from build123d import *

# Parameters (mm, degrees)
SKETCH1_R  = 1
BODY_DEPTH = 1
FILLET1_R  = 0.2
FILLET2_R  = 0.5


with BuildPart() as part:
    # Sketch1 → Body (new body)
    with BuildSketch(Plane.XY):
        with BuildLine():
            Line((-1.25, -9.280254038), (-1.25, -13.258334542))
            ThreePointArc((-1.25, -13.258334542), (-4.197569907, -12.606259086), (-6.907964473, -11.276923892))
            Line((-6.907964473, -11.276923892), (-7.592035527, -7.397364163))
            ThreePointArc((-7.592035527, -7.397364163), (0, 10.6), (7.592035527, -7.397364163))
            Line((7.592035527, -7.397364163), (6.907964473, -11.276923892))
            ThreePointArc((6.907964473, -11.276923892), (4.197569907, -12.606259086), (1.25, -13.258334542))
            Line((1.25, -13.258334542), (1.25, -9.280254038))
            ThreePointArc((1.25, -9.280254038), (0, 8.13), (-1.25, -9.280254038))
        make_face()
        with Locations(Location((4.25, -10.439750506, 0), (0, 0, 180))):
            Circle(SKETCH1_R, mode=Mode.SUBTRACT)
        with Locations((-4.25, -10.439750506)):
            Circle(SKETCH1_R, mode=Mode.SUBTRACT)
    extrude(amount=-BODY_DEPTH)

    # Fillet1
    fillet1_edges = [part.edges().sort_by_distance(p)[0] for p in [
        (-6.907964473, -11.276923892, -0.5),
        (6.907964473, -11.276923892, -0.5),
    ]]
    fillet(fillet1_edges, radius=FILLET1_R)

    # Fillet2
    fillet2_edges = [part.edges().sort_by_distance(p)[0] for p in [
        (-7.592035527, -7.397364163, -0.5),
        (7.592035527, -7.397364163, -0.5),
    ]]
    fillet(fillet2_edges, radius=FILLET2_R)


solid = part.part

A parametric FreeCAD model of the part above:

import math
import FreeCAD as App
import Part
import Sketcher

V = App.Vector
Q = App.Units.Quantity


def edges_at(feature, points):
    """Names of the edges that pass closest to the given points."""
    edges = feature.Shape.Edges
    near = lambda p: min(range(len(edges)), key=lambda i: edges[i].distToShape(Part.Vertex(*p))[0])
    return sorted({f"Edge{near(p) + 1}" for p in points})

doc = App.newDocument("Part")
body = doc.addObject("PartDesign::Body", "Body")

sketch1 = body.newObject("Sketcher::SketchObject", "Sketch")
sketch1.AttachmentSupport = (doc.getObject("XY_Plane"), [""])
sketch1.MapMode = "FlatFace"
sketch1.addGeometry(Part.LineSegment(V(-1.2, -13.3, 0), V(-1.2, -9.3, 0)), False)
sketch1.addGeometry(Part.ArcOfCircle(Part.Circle(V(0, -0.6, 0), V(0, 0, 1), 8.8), math.radians(-82), math.radians(262)), False)
sketch1.addGeometry(Part.LineSegment(V(1.2, -9.3, 0), V(1.2, -13.3, 0)), False)
sketch1.addGeometry(Part.ArcOfCircle(Part.Circle(V(0, -0.6, 0), V(0, 0, 1), 12.7), math.radians(-84), math.radians(-57)), False)
sketch1.addGeometry(Part.LineSegment(V(6.9, -11.3, 0), V(7.6, -7.4, 0)), False)
sketch1.addGeometry(Part.ArcOfCircle(Part.Circle(V(0, 0, 0), V(0, 0, 1), 10.6), math.radians(-44), math.radians(224)), False)
sketch1.addGeometry(Part.LineSegment(V(-7.6, -7.4, 0), V(-6.9, -11.3, 0)), False)
sketch1.addGeometry(Part.ArcOfCircle(Part.Circle(V(0, -0.6, 0), V(0, 0, 1), 12.7), math.radians(-123), math.radians(-96)), False)
sketch1.addGeometry(Part.Circle(V(4.2, -10.4, 0), V(0, 0, 1), 1), False)
sketch1.addGeometry(Part.Circle(V(-4.2, -10.4, 0), V(0, 0, 1), 1), False)
sketch1.addConstraint(Sketcher.Constraint("Coincident", 0, 2, 1, 2))
sketch1.addConstraint(Sketcher.Constraint("Coincident", 1, 1, 2, 1))
sketch1.addConstraint(Sketcher.Constraint("Coincident", 2, 2, 3, 1))
sketch1.addConstraint(Sketcher.Constraint("Coincident", 3, 2, 4, 1))
sketch1.addConstraint(Sketcher.Constraint("Coincident", 4, 2, 5, 1))
sketch1.addConstraint(Sketcher.Constraint("Coincident", 5, 2, 6, 1))
sketch1.addConstraint(Sketcher.Constraint("Coincident", 6, 2, 7, 1))
sketch1.addConstraint(Sketcher.Constraint("Coincident", 7, 2, 0, 1))
sketch1.addConstraint(Sketcher.Constraint("Vertical", 0))
sketch1.addConstraint(Sketcher.Constraint("Vertical", 2))
sketch1.addConstraint(Sketcher.Constraint("Coincident", 5, 3, -1, 1))
sketch1.addConstraint(Sketcher.Constraint("Coincident", 3, 3, 1, 3))
sketch1.addConstraint(Sketcher.Constraint("Coincident", 7, 3, 1, 3))
sketch1.addConstraint(Sketcher.Constraint("Equal", 3, 7))
sketch1.addConstraint(Sketcher.Constraint("Equal", 8, 9))
sketch1.addConstraint(Sketcher.Constraint("Symmetric", 8, 3, 9, 3, -2))
sketch1.addConstraint(Sketcher.Constraint("Symmetric", 0, 2, 1, 1, -2))
sketch1.addConstraint(Sketcher.Constraint("Horizontal", 4, 2, 5, 2))
sketch1.addConstraint(Sketcher.Constraint("Horizontal", 3, 2, 6, 2))
sketch1.addConstraint(Sketcher.Constraint("Diameter", 8, 2.0))
sketch1.addConstraint(Sketcher.Constraint("Radius", 3, 12.7))
sketch1.addConstraint(Sketcher.Constraint("Radius", 5, 10.6))
sketch1.addConstraint(Sketcher.Constraint("Angle", 4, Q("80 deg")))
sketch1.addConstraint(Sketcher.Constraint("Radius", 1, 8.75))
sketch1.addConstraint(Sketcher.Constraint("DistanceX", 9, 3, 0, 2, 3.0))
sketch1.addConstraint(Sketcher.Constraint("DistanceX", 9, 3, 8, 3, 8.5))
sketch1.addConstraint(Sketcher.Constraint("DistanceY", 1, 3, -1, 1, 0.62))
sketch1.addConstraint(Sketcher.Constraint("Distance", 4, 3.939408))
sketch1.addConstraint(Sketcher.Constraint("DistanceY", 8, 3, -1, 1, 10.439751))
pad1 = body.newObject("PartDesign::Pad", "Pad")
pad1.Profile = sketch1
pad1.Length = 1
pad1.Reversed = True
doc.recompute()

fillet = body.newObject("PartDesign::Fillet", "Fillet")
fillet.Base = (pad1, edges_at(pad1, [(-6.908, -11.277, -0.5), (6.908, -11.277, -0.5)]))
fillet.Radius = 0.2
doc.recompute()

fillet2 = body.newObject("PartDesign::Fillet", "Fillet001")
fillet2.Base = (fillet, edges_at(fillet, [(-7.592, -7.397, -0.5), (7.592, -7.397, -0.5)]))
fillet2.Radius = 0.5

doc.recompute()
